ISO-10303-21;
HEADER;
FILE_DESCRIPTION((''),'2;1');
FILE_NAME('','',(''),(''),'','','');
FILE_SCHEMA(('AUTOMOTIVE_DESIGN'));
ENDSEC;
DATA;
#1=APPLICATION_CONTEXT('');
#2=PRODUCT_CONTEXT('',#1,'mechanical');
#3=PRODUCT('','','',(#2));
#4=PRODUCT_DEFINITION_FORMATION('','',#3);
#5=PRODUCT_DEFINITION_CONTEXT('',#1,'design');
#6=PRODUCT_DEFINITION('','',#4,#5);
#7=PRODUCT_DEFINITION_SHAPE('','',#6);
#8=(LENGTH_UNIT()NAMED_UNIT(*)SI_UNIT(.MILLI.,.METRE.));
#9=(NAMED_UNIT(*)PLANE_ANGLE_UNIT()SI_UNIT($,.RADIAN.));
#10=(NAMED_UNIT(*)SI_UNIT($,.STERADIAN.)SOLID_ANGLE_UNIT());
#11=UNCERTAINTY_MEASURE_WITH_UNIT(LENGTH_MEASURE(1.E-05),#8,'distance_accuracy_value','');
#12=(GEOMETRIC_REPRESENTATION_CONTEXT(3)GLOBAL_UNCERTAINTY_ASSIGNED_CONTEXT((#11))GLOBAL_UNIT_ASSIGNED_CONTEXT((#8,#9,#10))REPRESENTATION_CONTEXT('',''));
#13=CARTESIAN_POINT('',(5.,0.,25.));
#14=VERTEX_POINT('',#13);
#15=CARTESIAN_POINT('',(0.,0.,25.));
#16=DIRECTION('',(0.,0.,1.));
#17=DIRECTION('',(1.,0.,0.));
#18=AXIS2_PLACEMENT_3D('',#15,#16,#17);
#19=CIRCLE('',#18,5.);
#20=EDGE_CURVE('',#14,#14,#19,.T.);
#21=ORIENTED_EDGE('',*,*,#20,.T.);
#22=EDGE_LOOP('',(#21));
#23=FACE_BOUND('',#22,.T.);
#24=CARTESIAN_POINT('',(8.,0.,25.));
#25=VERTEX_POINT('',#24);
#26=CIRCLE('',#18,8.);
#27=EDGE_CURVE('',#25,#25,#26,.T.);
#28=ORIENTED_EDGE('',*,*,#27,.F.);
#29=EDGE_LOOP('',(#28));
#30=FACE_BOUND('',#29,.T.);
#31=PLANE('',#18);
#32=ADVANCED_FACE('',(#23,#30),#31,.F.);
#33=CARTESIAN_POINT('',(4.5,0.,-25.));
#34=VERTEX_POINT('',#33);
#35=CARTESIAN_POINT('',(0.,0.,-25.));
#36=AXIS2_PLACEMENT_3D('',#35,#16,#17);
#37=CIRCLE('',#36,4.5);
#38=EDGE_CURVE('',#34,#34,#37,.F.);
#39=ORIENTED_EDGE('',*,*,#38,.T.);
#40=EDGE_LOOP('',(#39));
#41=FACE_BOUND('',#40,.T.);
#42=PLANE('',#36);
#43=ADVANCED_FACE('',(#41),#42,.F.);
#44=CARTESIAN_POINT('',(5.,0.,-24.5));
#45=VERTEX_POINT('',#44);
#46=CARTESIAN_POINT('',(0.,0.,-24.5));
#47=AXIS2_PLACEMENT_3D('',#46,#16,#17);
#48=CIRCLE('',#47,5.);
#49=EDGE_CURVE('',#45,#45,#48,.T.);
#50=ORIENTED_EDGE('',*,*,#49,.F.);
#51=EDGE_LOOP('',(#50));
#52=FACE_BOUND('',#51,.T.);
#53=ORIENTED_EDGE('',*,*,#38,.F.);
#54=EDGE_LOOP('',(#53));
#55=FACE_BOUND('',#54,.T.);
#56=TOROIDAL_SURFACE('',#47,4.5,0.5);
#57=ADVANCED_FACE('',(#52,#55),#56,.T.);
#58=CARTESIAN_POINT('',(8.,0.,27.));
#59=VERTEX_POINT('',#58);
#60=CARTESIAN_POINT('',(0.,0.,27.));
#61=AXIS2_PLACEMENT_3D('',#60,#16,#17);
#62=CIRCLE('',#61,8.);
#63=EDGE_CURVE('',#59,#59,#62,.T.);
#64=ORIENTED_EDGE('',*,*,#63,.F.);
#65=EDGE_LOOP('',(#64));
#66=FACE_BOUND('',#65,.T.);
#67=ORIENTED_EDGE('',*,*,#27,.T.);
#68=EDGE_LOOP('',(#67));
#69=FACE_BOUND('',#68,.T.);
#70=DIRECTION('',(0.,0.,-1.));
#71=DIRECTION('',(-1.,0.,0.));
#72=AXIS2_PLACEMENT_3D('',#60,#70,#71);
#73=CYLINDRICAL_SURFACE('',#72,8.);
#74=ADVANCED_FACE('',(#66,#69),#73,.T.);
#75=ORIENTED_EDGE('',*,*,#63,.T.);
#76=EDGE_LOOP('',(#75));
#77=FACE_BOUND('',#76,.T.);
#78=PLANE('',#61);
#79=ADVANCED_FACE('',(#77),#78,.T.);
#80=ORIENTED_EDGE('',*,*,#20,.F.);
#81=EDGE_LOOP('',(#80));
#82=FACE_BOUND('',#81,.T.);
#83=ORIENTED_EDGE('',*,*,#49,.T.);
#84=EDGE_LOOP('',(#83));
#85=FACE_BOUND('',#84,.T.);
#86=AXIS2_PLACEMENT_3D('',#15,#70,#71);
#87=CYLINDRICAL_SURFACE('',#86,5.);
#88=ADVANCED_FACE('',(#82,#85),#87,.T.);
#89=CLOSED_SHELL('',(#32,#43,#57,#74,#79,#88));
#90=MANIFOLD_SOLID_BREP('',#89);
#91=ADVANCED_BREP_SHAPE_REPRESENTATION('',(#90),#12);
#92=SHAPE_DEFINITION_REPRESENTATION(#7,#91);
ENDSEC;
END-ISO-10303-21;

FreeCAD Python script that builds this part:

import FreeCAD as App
import Part
import Sketcher

V = App.Vector
Q = App.Units.Quantity


def edges_at(feature, points):
    """Names of the edges that pass closest to the given points."""
    edges = feature.Shape.Edges
    near = lambda p: min(range(len(edges)), key=lambda i: edges[i].distToShape(Part.Vertex(*p))[0])
    return sorted({f"Edge{near(p) + 1}" for p in points})

doc = App.newDocument("Part")
body = doc.addObject("PartDesign::Body", "Body")

# Sketch on XY plane
sketch1 = doc.addObject("Sketcher::SketchObject", "Sketch")
body.addObject(sketch1)
sketch1.AttachmentSupport = (doc.XY_Plane, [""])
sketch1.MapMode = "FlatFace"
sketch1.addGeometry(Part.Circle(V(0, 0, 0), V(0, 0, 1), 5), False)
sketch1.addConstraint([
    Sketcher.Constraint("Coincident", 0, 3, -1, 1),
    Sketcher.Constraint("Diameter", 0, Q("10 mm")),
])
pad1 = doc.addObject("PartDesign::Pad", "Pad")
body.addObject(pad1)
pad1.Profile = sketch1
pad1.Length = 50
pad1.Midplane = True
doc.recompute()

fillet = doc.addObject("PartDesign::Fillet", "Fillet")
body.addObject(fillet)
fillet.Base = (pad1, edges_at(pad1, [(-5, 0, -25)]))
fillet.Radius = 0.5

# Sketch on XY plane
sketch2 = doc.addObject("Sketcher::SketchObject", "Sketch001")
body.addObject(sketch2)
sketch2.AttachmentSupport = (doc.XY_Plane, [""])
sketch2.MapMode = "FlatFace"
sketch2.AttachmentOffset = App.Placement(V(0, 0, 25), App.Rotation())
sketch2.addGeometry(Part.Circle(V(0, 0, 0), V(0, 0, 1), 8), False)
sketch2.addConstraint([
    Sketcher.Constraint("Coincident", 0, 3, -1, 1),
    Sketcher.Constraint("Diameter", 0, Q("16 mm")),
])
pad2 = doc.addObject("PartDesign::Pad", "Pad001")
body.addObject(pad2)
pad2.Profile = sketch2
pad2.Length = 2

doc.recompute()
